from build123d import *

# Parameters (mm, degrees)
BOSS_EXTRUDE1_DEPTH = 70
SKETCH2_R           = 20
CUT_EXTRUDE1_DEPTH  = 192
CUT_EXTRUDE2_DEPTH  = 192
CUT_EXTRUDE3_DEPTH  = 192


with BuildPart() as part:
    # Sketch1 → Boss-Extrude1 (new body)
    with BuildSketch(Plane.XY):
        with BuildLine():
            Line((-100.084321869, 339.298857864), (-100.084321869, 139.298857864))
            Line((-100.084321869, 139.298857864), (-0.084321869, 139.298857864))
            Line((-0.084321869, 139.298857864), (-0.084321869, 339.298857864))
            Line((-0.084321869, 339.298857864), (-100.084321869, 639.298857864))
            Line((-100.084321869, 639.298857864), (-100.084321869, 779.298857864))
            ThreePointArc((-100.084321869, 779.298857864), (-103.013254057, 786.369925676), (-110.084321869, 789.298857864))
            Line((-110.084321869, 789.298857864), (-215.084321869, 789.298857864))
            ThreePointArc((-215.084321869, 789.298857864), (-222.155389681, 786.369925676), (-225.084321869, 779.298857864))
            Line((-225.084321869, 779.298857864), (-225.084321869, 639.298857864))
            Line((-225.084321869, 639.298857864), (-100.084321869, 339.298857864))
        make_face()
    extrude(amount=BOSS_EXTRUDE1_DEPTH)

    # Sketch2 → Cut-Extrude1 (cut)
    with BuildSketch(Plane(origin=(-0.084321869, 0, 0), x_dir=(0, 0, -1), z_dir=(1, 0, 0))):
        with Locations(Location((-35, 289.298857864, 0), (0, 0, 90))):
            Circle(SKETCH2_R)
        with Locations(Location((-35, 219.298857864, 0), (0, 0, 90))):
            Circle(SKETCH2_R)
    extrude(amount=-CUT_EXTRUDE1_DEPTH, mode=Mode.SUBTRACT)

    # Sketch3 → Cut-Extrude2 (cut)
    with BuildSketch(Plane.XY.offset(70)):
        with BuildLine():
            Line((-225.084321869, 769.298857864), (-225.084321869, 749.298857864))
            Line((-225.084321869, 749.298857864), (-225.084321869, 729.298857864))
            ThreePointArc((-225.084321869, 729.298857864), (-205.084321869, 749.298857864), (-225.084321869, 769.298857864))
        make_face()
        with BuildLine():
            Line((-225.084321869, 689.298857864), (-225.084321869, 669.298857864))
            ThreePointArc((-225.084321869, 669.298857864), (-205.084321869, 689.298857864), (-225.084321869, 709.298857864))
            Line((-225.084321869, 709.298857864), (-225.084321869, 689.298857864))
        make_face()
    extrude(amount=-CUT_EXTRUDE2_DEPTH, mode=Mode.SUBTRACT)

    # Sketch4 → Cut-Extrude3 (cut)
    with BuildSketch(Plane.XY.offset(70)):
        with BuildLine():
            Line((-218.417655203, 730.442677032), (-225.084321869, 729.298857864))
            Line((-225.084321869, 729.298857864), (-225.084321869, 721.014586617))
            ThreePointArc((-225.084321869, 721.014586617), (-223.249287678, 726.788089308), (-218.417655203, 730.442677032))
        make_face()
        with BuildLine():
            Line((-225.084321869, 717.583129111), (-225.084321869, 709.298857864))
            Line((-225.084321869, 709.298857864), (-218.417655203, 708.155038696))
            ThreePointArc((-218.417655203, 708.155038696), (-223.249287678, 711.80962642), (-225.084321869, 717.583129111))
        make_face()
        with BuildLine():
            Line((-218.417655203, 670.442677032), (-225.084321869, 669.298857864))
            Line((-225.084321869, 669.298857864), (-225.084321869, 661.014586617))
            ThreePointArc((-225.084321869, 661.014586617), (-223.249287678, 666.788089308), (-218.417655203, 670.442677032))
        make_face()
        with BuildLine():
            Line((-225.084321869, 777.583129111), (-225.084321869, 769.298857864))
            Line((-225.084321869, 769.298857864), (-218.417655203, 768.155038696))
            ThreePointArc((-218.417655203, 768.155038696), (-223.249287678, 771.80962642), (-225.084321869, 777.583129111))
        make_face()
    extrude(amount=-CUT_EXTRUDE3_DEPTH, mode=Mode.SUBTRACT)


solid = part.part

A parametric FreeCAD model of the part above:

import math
import FreeCAD as App
import Part
import Sketcher

V = App.Vector
Q = App.Units.Quantity

doc = App.newDocument("Part")
body = doc.addObject("PartDesign::Body", "Body")

sketch1 = body.newObject("Sketcher::SketchObject", "Sketch")
sketch1.AttachmentSupport = (doc.getObject("XY_Plane"), [""])
sketch1.MapMode = "FlatFace"
sketch1.addGeometry([
    Part.LineSegment(V(-100.084322, 339.298858, 0), V(-100.084322, 139.298858, 0)),
    Part.LineSegment(V(-100.084322, 139.298858, 0), V(-0.084322, 139.298858, 0)),
    Part.LineSegment(V(-0.084322, 139.298858, 0), V(-0.084322, 339.298858, 0)),
    Part.LineSegment(V(-0.084322, 339.298858, 0), V(-100.084322, 639.298858, 0)),
    Part.LineSegment(V(-100.084322, 639.298858, 0), V(-100.084322, 779.298858, 0)),
    Part.ArcOfCircle(Part.Circle(V(-110.084322, 779.298858, 0), V(0, 0, 1), 10), math.radians(0), math.radians(90)),
    Part.LineSegment(V(-110.084322, 789.298858, 0), V(-215.084322, 789.298858, 0)),
    Part.ArcOfCircle(Part.Circle(V(-215.084322, 779.298858, 0), V(0, 0, 1), 10), math.radians(90), math.radians(180)),
    Part.LineSegment(V(-225.084322, 779.298858, 0), V(-225.084322, 639.298858, 0)),
    Part.LineSegment(V(-225.084322, 639.298858, 0), V(-100.084322, 339.298858, 0)),
], False)
sketch1.addConstraint([
    Sketcher.Constraint("Coincident", 0, 2, 1, 1),
    Sketcher.Constraint("Coincident", 1, 2, 2, 1),
    Sketcher.Constraint("Coincident", 2, 2, 3, 1),
    Sketcher.Constraint("Coincident", 3, 2, 4, 1),
    Sketcher.Constraint("Tangent", 4, 2, 5, 1),
    Sketcher.Constraint("Tangent", 5, 2, 6, 1),
    Sketcher.Constraint("Tangent", 6, 2, 7, 1),
    Sketcher.Constraint("Tangent", 7, 2, 8, 1),
    Sketcher.Constraint("Coincident", 8, 2, 9, 1),
    Sketcher.Constraint("Coincident", 9, 2, 0, 1),
    Sketcher.Constraint("Vertical", 0),
    Sketcher.Constraint("Horizontal", 1),
    Sketcher.Constraint("Vertical", 2),
    Sketcher.Constraint("Vertical", 4),
    Sketcher.Constraint("Horizontal", 6),
    Sketcher.Constraint("Vertical", 8),
    Sketcher.Constraint("Equal", 5, 7),
    Sketcher.Constraint("Horizontal", 3, 2, 8, 2),
    Sketcher.Constraint("Horizontal", 2, 2, 9, 2),
    Sketcher.Constraint("Vertical", 0, 2, 3, 2),
    Sketcher.Constraint("Radius", 5, Q("10 mm")),
    Sketcher.Constraint("DistanceX", 1, 1, 1, 2, Q("100 mm")),
    Sketcher.Constraint("DistanceX", 6, 2, 6, 1, Q("105 mm")),
    Sketcher.Constraint("DistanceY", 0, 2, 0, 1, Q("200 mm")),
    Sketcher.Constraint("DistanceY", 4, 1, 4, 2, Q("140 mm")),
    Sketcher.Constraint("Distance", 9, Q("325 mm")),
    Sketcher.Constraint("DistanceX", 5, 3, -1, 1, Q("110.084322 mm")),
    Sketcher.Constraint("DistanceY", -1, 1, 5, 3, Q("779.298858 mm")),
])
pad1 = body.newObject("PartDesign::Pad", "Pad")
pad1.Profile = sketch1
pad1.Length = 70

sketch2 = body.newObject("Sketcher::SketchObject", "Sketch001")
sketch2.AttachmentSupport = (doc.getObject("YZ_Plane"), [""])
sketch2.MapMode = "FlatFace"
sketch2.AttachmentOffset = App.Placement(V(0, 0, -0.084322), App.Rotation())
sketch2.addGeometry([
    Part.Circle(V(289.298858, 35, 0), V(0, 0, 1), 20),
    Part.Circle(V(219.298858, 35, 0), V(0, 0, 1), 20),
], False)
sketch2.addConstraint([
    Sketcher.Constraint("Equal", 0, 1),
    Sketcher.Constraint("Horizontal", 0, 3, 1, 3),
    Sketcher.Constraint("Diameter", 0, Q("40 mm")),
    Sketcher.Constraint("DistanceY", -1, 1, 0, 3, Q("35 mm")),
    Sketcher.Constraint("DistanceX", 1, 3, 0, 3, Q("70 mm")),
    Sketcher.Constraint("DistanceX", -1, 1, 0, 3, Q("289.298858 mm")),
])
pocket1 = body.newObject("PartDesign::Pocket", "Pocket")
pocket1.Profile = sketch2
pocket1.Length = 192

sketch3 = body.newObject("Sketcher::SketchObject", "Sketch002")
sketch3.AttachmentSupport = (doc.getObject("XY_Plane"), [""])
sketch3.MapMode = "FlatFace"
sketch3.AttachmentOffset = App.Placement(V(0, 0, 70), App.Rotation())
sketch3.addGeometry([
    Part.LineSegment(V(-225.084322, 769.298858, 0), V(-225.084322, 729.298858, 0)),
    Part.ArcOfCircle(Part.Circle(V(-225.084322, 749.298858, 0), V(0, 0, 1), 20), math.radians(-90), math.radians(90)),
    Part.ArcOfCircle(Part.Circle(V(-225.084322, 689.298858, 0), V(0, 0, 1), 20), math.radians(-90), math.radians(90)),
    Part.LineSegment(V(-225.084322, 709.298858, 0), V(-225.084322, 669.298858, 0)),
], False)
sketch3.addConstraint([
    Sketcher.Constraint("Coincident", 0, 1, 1, 2),
    Sketcher.Constraint("Coincident", 1, 1, 0, 2),
    Sketcher.Constraint("Coincident", 2, 1, 3, 2),
    Sketcher.Constraint("Coincident", 3, 1, 2, 2),
    Sketcher.Constraint("Vertical", 0),
    Sketcher.Constraint("Vertical", 3),
    Sketcher.Constraint("Equal", 1, 2),
    Sketcher.Constraint("Vertical", 1, 3, 2, 3),
    Sketcher.Constraint("Vertical", 2, 3, 0, 1),
    Sketcher.Constraint("Vertical", 1, 1, 2, 1),
    Sketcher.Constraint("Radius", 1, Q("20 mm")),
    Sketcher.Constraint("DistanceY", 2, 3, 1, 3, Q("60 mm")),
    Sketcher.Constraint("DistanceX", 1, 3, -1, 1, Q("225.084322 mm")),
    Sketcher.Constraint("DistanceY", -1, 1, 1, 3, Q("749.298858 mm")),
])
pocket2 = body.newObject("PartDesign::Pocket", "Pocket001")
pocket2.Profile = sketch3
pocket2.Length = 192

sketch4 = body.newObject("Sketcher::SketchObject", "Sketch003")
sketch4.AttachmentSupport = (doc.getObject("XY_Plane"), [""])
sketch4.MapMode = "FlatFace"
sketch4.AttachmentOffset = App.Placement(V(0, 0, 70), App.Rotation())
sketch4.addGeometry([
    Part.LineSegment(V(-218.417655, 730.442677, 0), V(-225.084322, 729.298858, 0)),
    Part.LineSegment(V(-225.084322, 729.298858, 0), V(-225.084322, 721.014587, 0)),
    Part.ArcOfCircle(Part.Circle(V(-215.084322, 721.014587, 0), V(0, 0, 1), 10), math.radians(109.471221), math.radians(180)),
    Part.LineSegment(V(-225.084322, 717.583129, 0), V(-225.084322, 709.298858, 0)),
    Part.LineSegment(V(-225.084322, 709.298858, 0), V(-218.417655, 708.155039, 0)),
    Part.ArcOfCircle(Part.Circle(V(-215.084322, 717.583129, 0), V(0, 0, 1), 10), math.radians(-180), math.radians(-109.471221)),
    Part.LineSegment(V(-218.417655, 670.442677, 0), V(-225.084322, 669.298858, 0)),
    Part.LineSegment(V(-225.084322, 669.298858, 0), V(-225.084322, 661.014587, 0)),
    Part.ArcOfCircle(Part.Circle(V(-215.084322, 661.014587, 0), V(0, 0, 1), 10), math.radians(109.471221), math.radians(180)),
    Part.LineSegment(V(-225.084322, 777.583129, 0), V(-225.084322, 769.298858, 0)),
    Part.LineSegment(V(-225.084322, 769.298858, 0), V(-218.417655, 768.155039, 0)),
    Part.ArcOfCircle(Part.Circle(V(-215.084322, 777.583129, 0), V(0, 0, 1), 10), math.radians(-180), math.radians(-109.471221)),
], False)
sketch4.addConstraint([
    Sketcher.Constraint("Coincident", 0, 2, 1, 1),
    Sketcher.Constraint("Tangent", 1, 2, 2, 2),
    Sketcher.Constraint("Coincident", 2, 1, 0, 1),
    Sketcher.Constraint("Coincident", 3, 2, 4, 1),
    Sketcher.Constraint("Coincident", 4, 2, 5, 2),
    Sketcher.Constraint("Tangent", 5, 1, 3, 1),
    Sketcher.Constraint("Coincident", 6, 2, 7, 1),
    Sketcher.Constraint("Tangent", 7, 2, 8, 2),
    Sketcher.Constraint("Coincident", 8, 1, 6, 1),
    Sketcher.Constraint("Coincident", 9, 2, 10, 1),
    Sketcher.Constraint("Coincident", 10, 2, 11, 2),
    Sketcher.Constraint("Tangent", 11, 1, 9, 1),
    Sketcher.Constraint("Vertical", 1),
    Sketcher.Constraint("Vertical", 3),
    Sketcher.Constraint("Vertical", 7),
    Sketcher.Constraint("Vertical", 9),
    Sketcher.Constraint("Equal", 2, 5),
    Sketcher.Constraint("Equal", 5, 8),
    Sketcher.Constraint("Equal", 8, 11),
    Sketcher.Constraint("Parallel", 0, 6),
    Sketcher.Constraint("Parallel", 4, 10),
    Sketcher.Constraint("Vertical", 2, 3, 5, 3),
    Sketcher.Constraint("Vertical", 5, 3, 8, 3),
    Sketcher.Constraint("Vertical", 8, 3, 11, 3),
    Sketcher.Constraint("Vertical", 2, 1, 4, 2),
    Sketcher.Constraint("Vertical", 4, 2, 8, 1),
    Sketcher.Constraint("Vertical", 8, 1, 10, 2),
    Sketcher.Constraint("Equal", 1, 3),
    Sketcher.Constraint("Radius", 2, Q("10 mm")),
    Sketcher.Constraint("DistanceY", 8, 3, 2, 3, Q("60 mm")),
    Sketcher.Constraint("DistanceY", 5, 3, 11, 3, Q("60 mm")),
    Sketcher.Constraint("DistanceY", 3, 2, 0, 2, Q("20 mm")),
    Sketcher.Constraint("DistanceY", 1, 2, 1, 1, Q("8.284271 mm")),
    Sketcher.Constraint("Distance", 0, Q("6.764079 mm")),
    Sketcher.Constraint("DistanceX", 2, 3, -1, 1, Q("215.084322 mm")),
    Sketcher.Constraint("DistanceY", -1, 1, 5, 3, Q("717.583129 mm")),
])
pocket3 = body.newObject("PartDesign::Pocket", "Pocket002")
pocket3.Profile = sketch4
pocket3.Length = 192

doc.recompute()
